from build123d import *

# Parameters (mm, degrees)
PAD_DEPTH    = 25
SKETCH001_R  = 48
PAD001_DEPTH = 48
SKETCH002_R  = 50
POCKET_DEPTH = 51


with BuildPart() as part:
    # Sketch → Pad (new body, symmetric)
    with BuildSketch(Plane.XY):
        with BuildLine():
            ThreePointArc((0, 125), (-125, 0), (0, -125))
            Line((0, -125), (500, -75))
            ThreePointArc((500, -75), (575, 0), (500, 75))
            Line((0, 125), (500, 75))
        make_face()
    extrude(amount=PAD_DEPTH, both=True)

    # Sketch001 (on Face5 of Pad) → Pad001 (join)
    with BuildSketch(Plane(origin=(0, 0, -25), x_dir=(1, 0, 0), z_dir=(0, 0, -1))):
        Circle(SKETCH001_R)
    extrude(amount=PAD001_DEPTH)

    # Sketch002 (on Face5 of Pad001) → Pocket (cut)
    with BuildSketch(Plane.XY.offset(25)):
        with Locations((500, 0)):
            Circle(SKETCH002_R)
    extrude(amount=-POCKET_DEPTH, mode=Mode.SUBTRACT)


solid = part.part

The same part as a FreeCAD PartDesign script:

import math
import FreeCAD as App
import Part
import Sketcher

V = App.Vector

doc = App.newDocument("Part")
body = doc.addObject("PartDesign::Body", "Body")

sketch1 = body.newObject("Sketcher::SketchObject", "Sketch")
sketch1.AttachmentSupport = (doc.getObject("XY_Plane"), [""])
sketch1.MapMode = "FlatFace"
sketch1.addGeometry(Part.ArcOfCircle(Part.Circle(V(0, 0, 0), V(0, 0, 1), 125), math.radians(90), math.radians(270)), False)
sketch1.addGeometry(Part.LineSegment(V(0, -125, 0), V(500, -75, 0)), False)
sketch1.addGeometry(Part.ArcOfCircle(Part.Circle(V(500, 0, 0), V(0, 0, 1), 75), math.radians(-90), math.radians(90)), False)
sketch1.addGeometry(Part.LineSegment(V(500, 75, 0), V(0, 125, 0)), False)
sketch1.addConstraint(Sketcher.Constraint("Coincident", 0, 2, 1, 1))
sketch1.addConstraint(Sketcher.Constraint("Coincident", 1, 2, 2, 1))
sketch1.addConstraint(Sketcher.Constraint("Coincident", 2, 2, 3, 1))
sketch1.addConstraint(Sketcher.Constraint("Coincident", 3, 2, 0, 1))
sketch1.addConstraint(Sketcher.Constraint("Coincident", 0, 3, -1, 1))
sketch1.addConstraint(Sketcher.Constraint("Symmetric", 1, 2, 2, 2, -1))
sketch1.addConstraint(Sketcher.Constraint("PointOnObject", 0, 2, -2))
sketch1.addConstraint(Sketcher.Constraint("PointOnObject", 3, 2, -2))
sketch1.addConstraint(Sketcher.Constraint("Vertical", 2, 3, 1, 2))
sketch1.addConstraint(Sketcher.Constraint("Radius", 0, 125.0))
sketch1.addConstraint(Sketcher.Constraint("Radius", 2, 75.0))
sketch1.addConstraint(Sketcher.Constraint("DistanceX", -1, 1, 2, 3, 500.0))
pad1 = body.newObject("PartDesign::Pad", "Pad")
pad1.Profile = sketch1
pad1.Length = 50
pad1.Midplane = True

sketch2 = body.newObject("Sketcher::SketchObject", "Sketch001")
sketch2.AttachmentSupport = (doc.getObject("XY_Plane"), [""])
sketch2.MapMode = "FlatFace"
sketch2.AttachmentOffset = App.Placement(V(0, 0, -25), App.Rotation())
sketch2.addGeometry(Part.Circle(V(0, 0, 0), V(0, 0, 1), 48), False)
sketch2.addConstraint(Sketcher.Constraint("Coincident", 0, 3, -1, 1))
sketch2.addConstraint(Sketcher.Constraint("Diameter", 0, 96.0))
pad2 = body.newObject("PartDesign::Pad", "Pad001")
pad2.Profile = sketch2
pad2.Length = 48
pad2.Reversed = True

sketch3 = body.newObject("Sketcher::SketchObject", "Sketch002")
sketch3.AttachmentSupport = (doc.getObject("XY_Plane"), [""])
sketch3.MapMode = "FlatFace"
sketch3.AttachmentOffset = App.Placement(V(0, 0, 25), App.Rotation())
sketch3.addGeometry(Part.Circle(V(500, 0, 0), V(0, 0, 1), 50), False)
sketch3.addConstraint(Sketcher.Constraint("PointOnObject", 0, 3, -1))
sketch3.addConstraint(Sketcher.Constraint("Diameter", 0, 100.0))
sketch3.addConstraint(Sketcher.Constraint("DistanceX", -1, 1, 0, 3, 500.0))
pocket1 = body.newObject("PartDesign::Pocket", "Pocket")
pocket1.Profile = sketch3
pocket1.Length = 51

doc.recompute()
